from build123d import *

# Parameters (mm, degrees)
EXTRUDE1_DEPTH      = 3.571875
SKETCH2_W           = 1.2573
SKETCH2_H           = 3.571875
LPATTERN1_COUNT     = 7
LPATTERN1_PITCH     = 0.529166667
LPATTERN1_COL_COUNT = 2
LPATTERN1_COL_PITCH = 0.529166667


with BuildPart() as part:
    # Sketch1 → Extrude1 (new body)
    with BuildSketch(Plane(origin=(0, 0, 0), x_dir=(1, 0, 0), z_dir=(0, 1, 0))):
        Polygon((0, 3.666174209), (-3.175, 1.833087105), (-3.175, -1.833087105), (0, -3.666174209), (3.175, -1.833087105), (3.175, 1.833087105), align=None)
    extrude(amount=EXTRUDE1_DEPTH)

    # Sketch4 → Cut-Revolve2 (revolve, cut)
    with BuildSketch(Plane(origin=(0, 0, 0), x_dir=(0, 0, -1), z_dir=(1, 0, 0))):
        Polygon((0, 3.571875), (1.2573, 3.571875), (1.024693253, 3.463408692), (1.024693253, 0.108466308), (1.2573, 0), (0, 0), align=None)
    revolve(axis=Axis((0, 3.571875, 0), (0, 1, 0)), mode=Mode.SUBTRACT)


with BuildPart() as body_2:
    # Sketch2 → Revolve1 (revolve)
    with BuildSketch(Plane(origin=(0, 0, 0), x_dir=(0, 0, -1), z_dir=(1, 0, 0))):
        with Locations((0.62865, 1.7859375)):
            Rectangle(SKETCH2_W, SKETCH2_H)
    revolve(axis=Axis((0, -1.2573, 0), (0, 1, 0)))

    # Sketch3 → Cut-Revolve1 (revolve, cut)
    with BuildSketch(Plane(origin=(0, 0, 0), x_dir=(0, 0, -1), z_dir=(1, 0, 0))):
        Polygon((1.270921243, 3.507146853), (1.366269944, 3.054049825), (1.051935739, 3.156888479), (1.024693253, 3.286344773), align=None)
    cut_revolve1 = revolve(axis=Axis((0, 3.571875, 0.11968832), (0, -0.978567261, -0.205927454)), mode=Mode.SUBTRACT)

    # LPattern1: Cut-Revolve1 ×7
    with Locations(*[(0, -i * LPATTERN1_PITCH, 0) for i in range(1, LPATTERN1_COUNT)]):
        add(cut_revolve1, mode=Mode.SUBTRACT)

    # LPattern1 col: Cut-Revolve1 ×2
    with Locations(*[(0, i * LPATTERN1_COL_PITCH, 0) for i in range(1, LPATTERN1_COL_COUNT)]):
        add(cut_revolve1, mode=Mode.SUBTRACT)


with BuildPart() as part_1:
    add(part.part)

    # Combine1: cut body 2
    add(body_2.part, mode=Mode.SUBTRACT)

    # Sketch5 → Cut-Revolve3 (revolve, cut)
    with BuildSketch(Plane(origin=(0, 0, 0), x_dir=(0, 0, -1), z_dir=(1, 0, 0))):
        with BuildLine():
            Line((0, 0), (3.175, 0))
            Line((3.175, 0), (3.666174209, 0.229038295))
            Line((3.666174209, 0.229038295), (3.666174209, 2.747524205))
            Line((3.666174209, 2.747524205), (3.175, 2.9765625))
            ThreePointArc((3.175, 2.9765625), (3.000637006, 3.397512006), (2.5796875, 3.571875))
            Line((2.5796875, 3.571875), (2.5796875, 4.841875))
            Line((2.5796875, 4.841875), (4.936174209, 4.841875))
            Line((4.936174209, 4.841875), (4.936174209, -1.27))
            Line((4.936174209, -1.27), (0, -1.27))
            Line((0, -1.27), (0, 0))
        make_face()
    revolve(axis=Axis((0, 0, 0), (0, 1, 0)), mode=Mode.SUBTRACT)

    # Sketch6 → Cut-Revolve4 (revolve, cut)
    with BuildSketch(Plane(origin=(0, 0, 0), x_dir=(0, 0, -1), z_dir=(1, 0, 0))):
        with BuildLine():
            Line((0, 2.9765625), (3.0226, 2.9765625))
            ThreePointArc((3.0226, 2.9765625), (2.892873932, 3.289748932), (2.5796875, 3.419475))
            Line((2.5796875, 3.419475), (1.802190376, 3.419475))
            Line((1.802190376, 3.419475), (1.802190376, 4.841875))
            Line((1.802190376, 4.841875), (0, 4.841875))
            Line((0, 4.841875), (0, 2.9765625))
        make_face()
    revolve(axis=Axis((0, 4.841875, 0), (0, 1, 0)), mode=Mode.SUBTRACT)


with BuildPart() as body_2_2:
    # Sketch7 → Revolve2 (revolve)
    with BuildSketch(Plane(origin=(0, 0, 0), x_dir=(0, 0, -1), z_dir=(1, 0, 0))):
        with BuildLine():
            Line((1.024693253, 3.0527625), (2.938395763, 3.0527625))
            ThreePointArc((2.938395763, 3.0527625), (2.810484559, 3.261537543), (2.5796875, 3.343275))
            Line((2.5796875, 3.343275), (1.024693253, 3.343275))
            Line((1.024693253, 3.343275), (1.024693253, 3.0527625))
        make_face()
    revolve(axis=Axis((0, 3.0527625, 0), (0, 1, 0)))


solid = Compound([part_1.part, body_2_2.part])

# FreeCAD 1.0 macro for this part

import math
import FreeCAD as App
import Part
import Sketcher

V = App.Vector
Q = App.Units.Quantity


def add_polygon(sketch, points):
    """Adds a closed chain of lines whose ends are joined by coincident constraints."""
    first, n = sketch.GeometryCount, len(points)
    for a, b in zip(points, points[1:] + points[:1]):
        sketch.addGeometry(Part.LineSegment(App.Vector(*a, 0), App.Vector(*b, 0)), False)
    for i in range(n):
        sketch.addConstraint(Sketcher.Constraint("Coincident", first + i, 2, first + (i + 1) % n, 1))

doc = App.newDocument("Part")
body = doc.addObject("PartDesign::Body", "Body")

# Sketch on XZ plane
sketch1 = body.newObject("Sketcher::SketchObject", "Sketch")
sketch1.AttachmentSupport = (doc.getObject("XZ_Plane"), [""])
sketch1.MapMode = "FlatFace"
add_polygon(sketch1, [(0, -3.7), (-3.2, -1.8), (-3.2, 1.8), (0, 3.7), (3.2, 1.8), (3.2, -1.8)])  # lines 0-5
sketch1.addConstraint([
    Sketcher.Constraint("Vertical", 1),
    Sketcher.Constraint("Vertical", 4),
    Sketcher.Constraint("Symmetric", 0, 2, 3, 2, -1, 1),
    Sketcher.Constraint("Symmetric", 2, 2, 5, 2, -1, 1),
    Sketcher.Constraint("PointOnObject", 2, 2, -2),
    Sketcher.Constraint("Parallel", 2, 5),
    Sketcher.Constraint("Horizontal", 1, 2, 3, 2),
    Sketcher.Constraint("Angle", 0, Q("150 deg")),
    Sketcher.Constraint("DistanceX", 1, 2, 3, 2, Q("0.25 in")),
    Sketcher.Constraint("DistanceY", 1, 1, 1, 2, Q("3.666174 mm")),
])
pad1 = body.newObject("PartDesign::Pad", "Pad")
pad1.Profile = sketch1
pad1.Length = Q("0.140625 in")
pad1.Reversed = True

# Sketch on YZ plane
sketch2 = body.newObject("Sketcher::SketchObject", "Sketch001")
sketch2.AttachmentSupport = (doc.getObject("YZ_Plane"), [""])
sketch2.MapMode = "FlatFace"
add_polygon(sketch2, [(3.57, -1.26), (3.57, 0), (0, 0), (0, -1.26), (0.11, -1.02), (3.46, -1.02)])  # lines 0-5
sketch2.addConstraint([
    Sketcher.Constraint("Vertical", 0),
    Sketcher.Constraint("Horizontal", 1),
    Sketcher.Constraint("Vertical", 2),
    Sketcher.Constraint("Horizontal", 4),
    Sketcher.Constraint("Coincident", 1, 2, -1, 1),
    Sketcher.Constraint("Horizontal", 2, 2, 5, 2),
    Sketcher.Constraint("Equal", 3, 5),
    Sketcher.Constraint("Angle", 3, Q("65 deg")),
    Sketcher.Constraint("DistanceX", 1, 2, 1, 1, Q("0.140625 in")),
    Sketcher.Constraint("DistanceY", 0, 1, 0, 2, Q("0.0495 in")),
    Sketcher.Constraint("DistanceX", 4, 1, 4, 2, Q("3.354942 mm")),
])
groove = body.newObject("PartDesign::Groove", "Groove")
groove.Profile = sketch2
groove.ReferenceAxis = (sketch2, ["H_Axis"])
groove.Angle = 360
body2 = doc.addObject("PartDesign::Body", "Body001")

# Sketch on YZ plane
sketch3 = body2.newObject("Sketcher::SketchObject", "Sketch002")
sketch3.AttachmentSupport = (doc.getObject("YZ_Plane001"), [""])
sketch3.MapMode = "FlatFace"
add_polygon(sketch3, [(3.6, 0), (0, 0), (0, -1.3), (3.6, -1.3)])  # lines 0-3
sketch3.addConstraint([
    Sketcher.Constraint("Horizontal", 0),
    Sketcher.Constraint("Vertical", 1),
    Sketcher.Constraint("Horizontal", 2),
    Sketcher.Constraint("Vertical", 3),
    Sketcher.Constraint("Coincident", 0, 2, -1, 1),
    Sketcher.Constraint("DistanceX", 0, 2, 0, 1, Q("0.140625 in")),
    Sketcher.Constraint("DistanceY", 1, 2, 1, 1, Q("0.0495 in")),
])
revolution = body2.newObject("PartDesign::Revolution", "Revolution")
revolution.Profile = sketch3
revolution.ReferenceAxis = (sketch3, ["H_Axis"])
revolution.Angle = 360

# Sketch on YZ plane
sketch4 = body2.newObject("Sketcher::SketchObject", "Sketch003")
sketch4.AttachmentSupport = (doc.getObject("YZ_Plane001"), [""])
sketch4.MapMode = "FlatFace"
add_polygon(sketch4, [(3.05, -1.37), (3.51, -1.27), (3.29, -1.02), (3.16, -1.05)])  # lines 0-3
sketch4.addGeometry(Part.LineSegment(V(3.23, 0.05, 0), V(2.78, -0.05, 0)), True)  # axis
sketch4.addConstraint([
    Sketcher.Constraint("Parallel", 0, 2),
    Sketcher.Constraint("Parallel", 2, 4),
    Sketcher.Constraint("Equal", 1, 3),
    Sketcher.Constraint("Equal", 0, 4),
    Sketcher.Constraint("Distance", 0, Q("0.463021 mm")),
    Sketcher.Constraint("Distance", 1, Q("0.330729 mm")),
    Sketcher.Constraint("Distance", 2, Q("0.132292 mm")),
    Sketcher.Constraint("DistanceY", 0, 2, -1, 1, Q("1.270921 mm")),
    Sketcher.Constraint("DistanceX", -1, 1, 2, 2, Q("3.156888 mm")),
    Sketcher.Constraint("DistanceX", -1, 1, 3, 2, Q("3.05405 mm")),
    Sketcher.Constraint("DistanceX", 4, 1, 1, 2, Q("0.05668 mm")),
    Sketcher.Constraint("DistanceY", 2, 2, 4, 1, Q("1.09961 mm")),
])
groove2 = body2.newObject("PartDesign::Groove", "Groove001")
groove2.Profile = sketch4
groove2.ReferenceAxis = (sketch4, ["Axis0"])
groove2.Angle = 360
doc.recompute()

linearpattern = body2.newObject("PartDesign::LinearPattern", "LinearPattern")
linearpattern.Originals = [groove2]
linearpattern.Direction = (doc.getObject("Y_Axis001"), [""])
linearpattern.Mode = "offset"
linearpattern.Offset = 0.529167
linearpattern.Occurrences = 7
linearpattern.Reversed = True
body2.Tip = linearpattern
doc.recompute()

linearpattern2 = body2.newObject("PartDesign::LinearPattern", "LinearPattern001")
linearpattern2.Originals = [groove2]
linearpattern2.Direction = (doc.getObject("Y_Axis001"), [""])
linearpattern2.Mode = "offset"
linearpattern2.Offset = 0.529167
linearpattern2.Occurrences = 2
body2.Tip = linearpattern2
doc.recompute()

boolean = body.newObject("PartDesign::Boolean", "Boolean")
boolean.Type = "Cut"
boolean.addObjects([body2])

# Sketch on YZ plane
sketch5 = body.newObject("Sketcher::SketchObject", "Sketch004")
sketch5.AttachmentSupport = (doc.getObject("YZ_Plane"), [""])
sketch5.MapMode = "FlatFace"
sketch5.addGeometry([
    Part.LineSegment(V(0, -3.2, 0), V(0, 0, 0)),  # 0
    Part.LineSegment(V(0, 0, 0), V(-1.3, 0, 0)),  # 1
    Part.LineSegment(V(-1.3, 0, 0), V(-1.3, -4.9, 0)),  # 2
    Part.LineSegment(V(-1.3, -4.9, 0), V(4.8, -4.9, 0)),  # 3
    Part.LineSegment(V(4.8, -4.9, 0), V(4.8, -2.6, 0)),  # 4
    Part.LineSegment(V(4.8, -2.6, 0), V(3.6, -2.6, 0)),  # 5
    Part.ArcOfCircle(Part.Circle(V(3, -2.6, 0), V(0, 0, 1), 0.6), math.radians(-90), math.radians(0)),  # 6
    Part.LineSegment(V(3, -3.2, 0), V(2.7, -3.7, 0)),  # 7
    Part.LineSegment(V(2.7, -3.7, 0), V(0.2, -3.7, 0)),  # 8
    Part.LineSegment(V(0.2, -3.7, 0), V(0, -3.2, 0)),  # 9
], False)
sketch5.addConstraint([
    Sketcher.Constraint("Coincident", 0, 2, 1, 1),
    Sketcher.Constraint("Coincident", 1, 2, 2, 1),
    Sketcher.Constraint("Coincident", 2, 2, 3, 1),
    Sketcher.Constraint("Coincident", 3, 2, 4, 1),
    Sketcher.Constraint("Coincident", 4, 2, 5, 1),
    Sketcher.Constraint("Coincident", 5, 2, 6, 2),
    Sketcher.Constraint("Coincident", 6, 1, 7, 1),
    Sketcher.Constraint("Coincident", 7, 2, 8, 1),
    Sketcher.Constraint("Coincident", 8, 2, 9, 1),
    Sketcher.Constraint("Coincident", 9, 2, 0, 1),
    Sketcher.Constraint("Vertical", 0),
    Sketcher.Constraint("Horizontal", 1),
    Sketcher.Constraint("Vertical", 2),
    Sketcher.Constraint("Horizontal", 3),
    Sketcher.Constraint("Vertical", 4),
    Sketcher.Constraint("Horizontal", 5),
    Sketcher.Constraint("Horizontal", 8),
    Sketcher.Constraint("Coincident", 0, 2, -1, 1),
    Sketcher.Constraint("Horizontal", 6, 3, 4, 2),
    Sketcher.Constraint("Horizontal", 6, 1, 9, 2),
    Sketcher.Constraint("Equal", 1, 5),
    Sketcher.Constraint("Equal", 7, 9),
    Sketcher.Constraint("Angle", 7, Q("-115 deg")),
    Sketcher.Constraint("DistanceX", 1, 2, 1, 1, Q("0.05 in")),
    Sketcher.Constraint("DistanceY", 0, 1, 0, 2, Q("0.125 in")),
    Sketcher.Constraint("DistanceY", 3, 2, 7, 2, Q("0.05 in")),
    Sketcher.Constraint("DistanceX", -1, 1, 5, 2, Q("0.140625 in")),
    Sketcher.Constraint("Radius", 6, Q("0.595312 mm")),
    Sketcher.Constraint("Distance", 7, Q("0.541951 mm")),
    Sketcher.Constraint("DistanceX", 8, 2, 8, 1, Q("2.518486 mm")),
])
groove3 = body.newObject("PartDesign::Groove", "Groove002")
groove3.Profile = sketch5
groove3.ReferenceAxis = (sketch5, ["H_Axis"])
groove3.Angle = 360

# Sketch on YZ plane
sketch6 = body.newObject("Sketcher::SketchObject", "Sketch005")
sketch6.AttachmentSupport = (doc.getObject("YZ_Plane"), [""])
sketch6.MapMode = "FlatFace"
sketch6.addGeometry([
    Part.LineSegment(V(2.98, 0, 0), V(2.98, -3.02, 0)),  # 0
    Part.ArcOfCircle(Part.Circle(V(2.98, -2.58, 0), V(0, 0, 1), 0.44), math.radians(-90), math.radians(0)),  # 1
    Part.LineSegment(V(3.42, -2.58, 0), V(3.42, -1.8, 0)),  # 2
    Part.LineSegment(V(3.42, -1.8, 0), V(4.84, -1.8, 0)),  # 3
    Part.LineSegment(V(4.84, -1.8, 0), V(4.84, 0, 0)),  # 4
    Part.LineSegment(V(4.84, 0, 0), V(2.98, 0, 0)),  # 5
], False)
sketch6.addConstraint([
    Sketcher.Constraint("Coincident", 0, 2, 1, 1),
    Sketcher.Constraint("Tangent", 1, 2, 2, 1),
    Sketcher.Constraint("Coincident", 2, 2, 3, 1),
    Sketcher.Constraint("Coincident", 3, 2, 4, 1),
    Sketcher.Constraint("Coincident", 4, 2, 5, 1),
    Sketcher.Constraint("Coincident", 5, 2, 0, 1),
    Sketcher.Constraint("Vertical", 0),
    Sketcher.Constraint("Vertical", 2),
    Sketcher.Constraint("Horizontal", 3),
    Sketcher.Constraint("Vertical", 4),
    Sketcher.Constraint("Horizontal", 5),
    Sketcher.Constraint("PointOnObject", 4, 2, -1),
    Sketcher.Constraint("Vertical", 1, 3, 0, 2),
    Sketcher.Constraint("DistanceX", 3, 1, 3, 2, Q("0.056 in")),
    Sketcher.Constraint("DistanceY", 0, 2, 0, 1, Q("0.119 in")),
    Sketcher.Constraint("Radius", 1, Q("0.442913 mm")),
    Sketcher.Constraint("DistanceY", 4, 1, 4, 2, Q("1.80219 mm")),
    Sketcher.Constraint("DistanceX", -1, 1, 1, 3, Q("2.976562 mm")),
])
groove4 = body.newObject("PartDesign::Groove", "Groove003")
groove4.Profile = sketch6
groove4.ReferenceAxis = (sketch6, ["H_Axis"])
groove4.Angle = 360
body3 = doc.addObject("PartDesign::Body", "Body002")

# Sketch on YZ plane
sketch7 = body3.newObject("Sketcher::SketchObject", "Sketch006")
sketch7.AttachmentSupport = (doc.getObject("YZ_Plane002"), [""])
sketch7.MapMode = "FlatFace"
sketch7.addGeometry([
    Part.LineSegment(V(3.05, -1.02, 0), V(3.05, -2.94, 0)),
    Part.ArcOfCircle(Part.Circle(V(2.98, -2.58, 0), V(0, 0, 1), 0.37), math.radians(-78), math.radians(0)),
    Part.LineSegment(V(3.34, -2.58, 0), V(3.34, -1.02, 0)),
    Part.LineSegment(V(3.34, -1.02, 0), V(3.05, -1.02, 0)),
], False)
sketch7.addConstraint([
    Sketcher.Constraint("Coincident", 0, 2, 1, 1),
    Sketcher.Constraint("Tangent", 1, 2, 2, 1),
    Sketcher.Constraint("Coincident", 2, 2, 3, 1),
    Sketcher.Constraint("Coincident", 3, 2, 0, 1),
    Sketcher.Constraint("Vertical", 0),
    Sketcher.Constraint("Vertical", 2),
    Sketcher.Constraint("Horizontal", 3),
    Sketcher.Constraint("DistanceX", 1, 3, 0, 2, Q("0.003 in")),
    Sketcher.Constraint("Radius", 1, Q("0.366713 mm")),
    Sketcher.Constraint("DistanceY", 0, 2, 0, 1, Q("1.913703 mm")),
    Sketcher.Constraint("DistanceX", -1, 1, 1, 3, Q("2.976562 mm")),
    Sketcher.Constraint("DistanceY", 1, 3, -1, 1, Q("2.579687 mm")),
])
revolution2 = body3.newObject("PartDesign::Revolution", "Revolution001")
revolution2.Profile = sketch7
revolution2.ReferenceAxis = (sketch7, ["H_Axis"])
revolution2.Angle = 360

doc.recompute()
